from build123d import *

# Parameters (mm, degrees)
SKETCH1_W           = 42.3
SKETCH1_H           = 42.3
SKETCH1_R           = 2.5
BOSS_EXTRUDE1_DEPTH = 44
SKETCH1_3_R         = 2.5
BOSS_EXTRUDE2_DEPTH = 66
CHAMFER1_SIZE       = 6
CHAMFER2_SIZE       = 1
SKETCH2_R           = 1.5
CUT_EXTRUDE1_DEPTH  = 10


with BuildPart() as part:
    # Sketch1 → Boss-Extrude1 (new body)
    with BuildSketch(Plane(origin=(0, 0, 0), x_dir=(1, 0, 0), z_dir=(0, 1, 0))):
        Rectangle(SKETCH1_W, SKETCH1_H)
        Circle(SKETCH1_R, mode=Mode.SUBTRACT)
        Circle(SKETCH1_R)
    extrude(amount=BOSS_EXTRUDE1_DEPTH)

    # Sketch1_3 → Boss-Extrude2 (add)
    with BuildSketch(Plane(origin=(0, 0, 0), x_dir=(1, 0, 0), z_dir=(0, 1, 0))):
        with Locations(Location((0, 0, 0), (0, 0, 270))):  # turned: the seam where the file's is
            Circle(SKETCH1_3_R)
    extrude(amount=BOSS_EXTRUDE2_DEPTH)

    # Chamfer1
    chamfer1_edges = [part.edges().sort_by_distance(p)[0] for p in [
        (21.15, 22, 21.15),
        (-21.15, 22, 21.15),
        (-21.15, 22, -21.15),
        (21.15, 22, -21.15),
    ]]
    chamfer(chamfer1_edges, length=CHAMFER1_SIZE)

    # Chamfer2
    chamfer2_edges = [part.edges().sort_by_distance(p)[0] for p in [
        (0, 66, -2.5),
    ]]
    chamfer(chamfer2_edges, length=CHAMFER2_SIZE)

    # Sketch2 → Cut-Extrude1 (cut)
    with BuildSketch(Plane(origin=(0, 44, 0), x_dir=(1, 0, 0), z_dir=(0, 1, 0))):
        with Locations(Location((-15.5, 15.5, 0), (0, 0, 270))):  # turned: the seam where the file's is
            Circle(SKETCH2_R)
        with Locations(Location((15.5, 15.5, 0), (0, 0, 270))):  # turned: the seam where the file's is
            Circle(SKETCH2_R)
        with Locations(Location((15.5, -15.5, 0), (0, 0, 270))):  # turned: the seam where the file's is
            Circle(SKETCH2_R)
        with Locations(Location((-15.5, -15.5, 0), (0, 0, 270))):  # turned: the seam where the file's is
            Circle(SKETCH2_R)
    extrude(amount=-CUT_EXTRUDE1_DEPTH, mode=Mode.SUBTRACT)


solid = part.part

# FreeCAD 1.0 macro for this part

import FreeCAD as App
import Part
import Sketcher
Q = App.Units.Quantity


def edges_at(feature, points):
    """Names of the edges that pass closest to the given points."""
    edges = feature.Shape.Edges
    near = lambda p: min(range(len(edges)), key=lambda i: edges[i].distToShape(Part.Vertex(*p))[0])
    return sorted({f"Edge{near(p) + 1}" for p in points})

doc = App.newDocument("Part")
body = doc.addObject("PartDesign::Body", "Body")

sketch1 = doc.addObject("Sketcher::SketchObject", "Sketch")
body.addObject(sketch1)
sketch1.AttachmentSupport = (doc.XZ_Plane, [""])
sketch1.MapMode = "FlatFace"
sketch1.addGeometry(Part.LineSegment(App.Vector(-21.15, -21.15, 0), App.Vector(-21.15, 21.15, 0)), False)
sketch1.addGeometry(Part.LineSegment(App.Vector(-21.15, 21.15, 0), App.Vector(21.15, 21.15, 0)), False)
sketch1.addGeometry(Part.LineSegment(App.Vector(21.15, 21.15, 0), App.Vector(21.15, -21.15, 0)), False)
sketch1.addGeometry(Part.LineSegment(App.Vector(21.15, -21.15, 0), App.Vector(-21.15, -21.15, 0)), False)
sketch1.addConstraint(Sketcher.Constraint("Coincident", 0, 2, 1, 1))
sketch1.addConstraint(Sketcher.Constraint("Coincident", 1, 2, 2, 1))
sketch1.addConstraint(Sketcher.Constraint("Coincident", 2, 2, 3, 1))
sketch1.addConstraint(Sketcher.Constraint("Coincident", 3, 2, 0, 1))
sketch1.addConstraint(Sketcher.Constraint("Vertical", 0))
sketch1.addConstraint(Sketcher.Constraint("Horizontal", 1))
sketch1.addConstraint(Sketcher.Constraint("Vertical", 2))
sketch1.addConstraint(Sketcher.Constraint("Horizontal", 3))
sketch1.addConstraint(Sketcher.Constraint("Symmetric", 0, 2, 2, 2, -1, 1))
sketch1.addConstraint(Sketcher.Constraint("Equal", 3, 0))
sketch1.addConstraint(Sketcher.Constraint("DistanceX", 1, 1, 1, 2, Q("42.3 mm")))
pad1 = doc.addObject("PartDesign::Pad", "Pad")
body.addObject(pad1)
pad1.Profile = sketch1
pad1.Length = 44
pad1.Reversed = True

sketch2 = doc.addObject("Sketcher::SketchObject", "Sketch001")
body.addObject(sketch2)
sketch2.AttachmentSupport = (doc.XZ_Plane, [""])
sketch2.MapMode = "FlatFace"
sketch2.addGeometry(Part.Circle(App.Vector(0, 0, 0), App.Vector(0, 0, 1), 2.5), False)
sketch2.addConstraint(Sketcher.Constraint("Coincident", 0, 3, -1, 1))
sketch2.addConstraint(Sketcher.Constraint("Diameter", 0, Q("5 mm")))
pad2 = doc.addObject("PartDesign::Pad", "Pad001")
body.addObject(pad2)
pad2.Profile = sketch2
pad2.Length = 66
pad2.Reversed = True
doc.recompute()

chamfer = doc.addObject("PartDesign::Chamfer", "Chamfer")
body.addObject(chamfer)
chamfer.Base = (pad2, edges_at(pad2, [
    (21.15, 22, 21.15),
    (-21.15, 22, 21.15),
    (-21.15, 22, -21.15),
    (21.15, 22, -21.15),
]))
chamfer.Size = 6
doc.recompute()

chamfer2 = doc.addObject("PartDesign::Chamfer", "Chamfer001")
body.addObject(chamfer2)
chamfer2.Base = (chamfer, edges_at(chamfer, [(0, 66, -2.5)]))
chamfer2.Size = 1

sketch3 = doc.addObject("Sketcher::SketchObject", "Sketch002")
body.addObject(sketch3)
sketch3.AttachmentSupport = (doc.XZ_Plane, [""])
sketch3.MapMode = "FlatFace"
sketch3.AttachmentOffset = App.Placement(App.Vector(0, 0, -44), App.Rotation())
sketch3.addGeometry(Part.Circle(App.Vector(-15.5, -15.5, 0), App.Vector(0, 0, 1), 1.5), False)
sketch3.addGeometry(Part.Circle(App.Vector(15.5, -15.5, 0), App.Vector(0, 0, 1), 1.5), False)
sketch3.addGeometry(Part.Circle(App.Vector(15.5, 15.5, 0), App.Vector(0, 0, 1), 1.5), False)
sketch3.addGeometry(Part.Circle(App.Vector(-15.5, 15.5, 0), App.Vector(0, 0, 1), 1.5), False)
sketch3.addConstraint(Sketcher.Constraint("Equal", 0, 1))
sketch3.addConstraint(Sketcher.Constraint("Equal", 1, 2))
sketch3.addConstraint(Sketcher.Constraint("Equal", 2, 3))
sketch3.addConstraint(Sketcher.Constraint("Symmetric", 0, 3, 2, 3, -1, 1))
sketch3.addConstraint(Sketcher.Constraint("Symmetric", 1, 3, 3, 3, -1, 1))
sketch3.addConstraint(Sketcher.Constraint("Symmetric", 0, 3, 1, 3, -2))
sketch3.addConstraint(Sketcher.Constraint("Diameter", 0, Q("3 mm")))
sketch3.addConstraint(Sketcher.Constraint("DistanceX", 0, 3, 1, 3, Q("31 mm")))
sketch3.addConstraint(Sketcher.Constraint("DistanceY", 1, 3, 2, 3, Q("31 mm")))
pocket1 = doc.addObject("PartDesign::Pocket", "Pocket")
body.addObject(pocket1)
pocket1.Profile = sketch3
pocket1.Length = 10
pocket1.Reversed = True

doc.recompute()
